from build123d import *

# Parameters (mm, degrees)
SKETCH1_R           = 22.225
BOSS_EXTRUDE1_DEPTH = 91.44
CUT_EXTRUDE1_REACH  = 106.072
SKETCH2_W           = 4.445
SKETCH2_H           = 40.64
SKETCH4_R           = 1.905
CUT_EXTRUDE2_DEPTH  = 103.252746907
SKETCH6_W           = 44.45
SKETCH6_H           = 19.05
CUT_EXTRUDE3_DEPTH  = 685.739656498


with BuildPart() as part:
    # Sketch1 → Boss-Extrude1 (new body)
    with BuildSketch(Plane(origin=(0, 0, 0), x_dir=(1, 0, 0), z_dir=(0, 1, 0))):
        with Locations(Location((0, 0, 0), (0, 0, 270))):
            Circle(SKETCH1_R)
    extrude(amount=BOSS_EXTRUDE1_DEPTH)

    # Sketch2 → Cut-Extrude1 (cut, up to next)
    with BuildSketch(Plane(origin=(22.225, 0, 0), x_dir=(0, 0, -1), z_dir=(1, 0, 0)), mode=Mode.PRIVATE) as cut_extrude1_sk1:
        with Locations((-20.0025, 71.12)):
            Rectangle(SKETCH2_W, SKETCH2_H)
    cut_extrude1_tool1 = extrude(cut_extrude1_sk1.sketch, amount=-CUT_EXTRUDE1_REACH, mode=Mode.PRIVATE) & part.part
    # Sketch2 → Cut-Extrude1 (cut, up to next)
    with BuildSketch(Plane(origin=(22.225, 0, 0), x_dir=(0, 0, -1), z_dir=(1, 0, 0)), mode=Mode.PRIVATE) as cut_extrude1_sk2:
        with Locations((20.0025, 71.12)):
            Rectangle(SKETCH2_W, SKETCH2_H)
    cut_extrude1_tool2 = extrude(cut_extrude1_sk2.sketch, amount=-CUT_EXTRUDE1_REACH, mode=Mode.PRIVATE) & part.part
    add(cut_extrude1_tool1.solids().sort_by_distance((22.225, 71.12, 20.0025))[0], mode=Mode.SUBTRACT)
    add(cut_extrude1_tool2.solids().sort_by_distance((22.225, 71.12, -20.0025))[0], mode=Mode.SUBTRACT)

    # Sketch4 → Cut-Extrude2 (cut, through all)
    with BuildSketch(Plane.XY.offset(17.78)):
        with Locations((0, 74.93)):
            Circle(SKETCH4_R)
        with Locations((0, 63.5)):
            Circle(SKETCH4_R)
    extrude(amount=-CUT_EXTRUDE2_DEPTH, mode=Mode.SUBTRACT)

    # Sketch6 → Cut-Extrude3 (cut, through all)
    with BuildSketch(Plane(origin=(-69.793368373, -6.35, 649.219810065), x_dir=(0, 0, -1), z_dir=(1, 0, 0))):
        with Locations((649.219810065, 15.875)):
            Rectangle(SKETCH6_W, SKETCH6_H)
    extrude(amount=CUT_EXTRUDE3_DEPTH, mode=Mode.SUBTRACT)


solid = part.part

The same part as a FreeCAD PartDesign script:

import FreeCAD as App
import Part
import Sketcher

V = App.Vector
Q = App.Units.Quantity


def add_polygon(sketch, points):
    """Adds a closed chain of lines whose ends are joined by coincident constraints."""
    first, n = sketch.GeometryCount, len(points)
    for a, b in zip(points, points[1:] + points[:1]):
        sketch.addGeometry(Part.LineSegment(App.Vector(*a, 0), App.Vector(*b, 0)), False)
    for i in range(n):
        sketch.addConstraint(Sketcher.Constraint("Coincident", first + i, 2, first + (i + 1) % n, 1))

doc = App.newDocument("Part")
body = doc.addObject("PartDesign::Body", "Body")

sketch1 = doc.addObject("Sketcher::SketchObject", "Sketch")
body.addObject(sketch1)
sketch1.AttachmentSupport = (doc.XZ_Plane, [""])
sketch1.MapMode = "FlatFace"
sketch1.addGeometry(Part.Circle(V(0, 0, 0), V(0, 0, 1), 22.225), False)
sketch1.addConstraint([
    Sketcher.Constraint("Coincident", 0, 3, -1, 1),
    Sketcher.Constraint("Diameter", 0, Q("1.75 in")),
])
pad1 = doc.addObject("PartDesign::Pad", "Pad")
body.addObject(pad1)
pad1.Profile = sketch1
pad1.Length = Q("3.6 in")
pad1.Reversed = True

sketch2 = doc.addObject("Sketcher::SketchObject", "Sketch001")
body.addObject(sketch2)
sketch2.AttachmentSupport = (doc.YZ_Plane, [""])
sketch2.MapMode = "FlatFace"
sketch2.AttachmentOffset = App.Placement(V(0, 0, 0.875 * 25.4), App.Rotation())
add_polygon(sketch2, [(91.44, 22.225), (50.8, 22.225), (50.8, 17.78), (91.44, 17.78)])
sketch2.addConstraint([
    Sketcher.Constraint("Horizontal", 0),
    Sketcher.Constraint("Vertical", 1),
    Sketcher.Constraint("Horizontal", 2),
    Sketcher.Constraint("Vertical", 3),
    Sketcher.Constraint("DistanceX", 0, 2, 0, 1, Q("1.6 in")),
    Sketcher.Constraint("DistanceX", -1, 1, 0, 2, Q("2 in")),
    Sketcher.Constraint("DistanceY", -1, 1, 1, 2, Q("0.7 in")),
    Sketcher.Constraint("DistanceY", 1, 2, 1, 1, Q("0.175 in")),
])
pocket1 = doc.addObject("PartDesign::Pocket", "Pocket")
body.addObject(pocket1)
pocket1.Profile = sketch2
pocket1.Type = "UpToFirst"

sketch3 = doc.addObject("Sketcher::SketchObject", "Sketch002")
body.addObject(sketch3)
sketch3.AttachmentSupport = (doc.YZ_Plane, [""])
sketch3.MapMode = "FlatFace"
sketch3.AttachmentOffset = App.Placement(V(0, 0, 0.875 * 25.4), App.Rotation())
add_polygon(sketch3, [(91.44, -17.78), (50.8, -17.78), (50.8, -22.225), (91.44, -22.225)])
sketch3.addConstraint([
    Sketcher.Constraint("Horizontal", 0),
    Sketcher.Constraint("Vertical", 1),
    Sketcher.Constraint("Horizontal", 2),
    Sketcher.Constraint("Vertical", 3),
    Sketcher.Constraint("DistanceX", 0, 2, 0, 1, Q("1.6 in")),
    Sketcher.Constraint("DistanceX", -1, 1, 0, 2, Q("2 in")),
    Sketcher.Constraint("DistanceY", 0, 2, -1, 1, Q("0.7 in")),
    Sketcher.Constraint("DistanceY", 1, 2, 1, 1, Q("0.175 in")),
])
pocket2 = doc.addObject("PartDesign::Pocket", "Pocket001")
body.addObject(pocket2)
pocket2.Profile = sketch3
pocket2.Type = "UpToFirst"

sketch4 = doc.addObject("Sketcher::SketchObject", "Sketch003")
body.addObject(sketch4)
sketch4.AttachmentSupport = (doc.XY_Plane, [""])
sketch4.MapMode = "FlatFace"
sketch4.AttachmentOffset = App.Placement(V(0, 0, 0.7 * 25.4), App.Rotation())
sketch4.addGeometry([
    Part.Circle(V(0, 74.93, 0), V(0, 0, 1), 1.905),
    Part.Circle(V(0, 63.5, 0), V(0, 0, 1), 1.905),
], False)
sketch4.addConstraint([
    Sketcher.Constraint("Equal", 0, 1),
    Sketcher.Constraint("PointOnObject", 0, 3, -2),
    Sketcher.Constraint("PointOnObject", 1, 3, -2),
    Sketcher.Constraint("Diameter", 0, Q("0.15 in")),
    Sketcher.Constraint("DistanceY", -1, 1, 1, 3, Q("2.5 in")),
    Sketcher.Constraint("DistanceY", -1, 1, 0, 3, Q("2.95 in")),
])
pocket3 = doc.addObject("PartDesign::Pocket", "Pocket002")
body.addObject(pocket3)
pocket3.Profile = sketch4
pocket3.Type = "ThroughAll"

sketch5 = doc.addObject("Sketcher::SketchObject", "Sketch004")
body.addObject(sketch5)
sketch5.AttachmentSupport = (doc.YZ_Plane, [""])
sketch5.MapMode = "FlatFace"
sketch5.AttachmentOffset = App.Placement(V(0, 0, -69.793368), App.Rotation())
add_polygon(sketch5, [(19.05, 22.225), (0, 22.225), (0, -22.225), (19.05, -22.225)])
sketch5.addConstraint([
    Sketcher.Constraint("Horizontal", 0),
    Sketcher.Constraint("Vertical", 1),
    Sketcher.Constraint("Horizontal", 2),
    Sketcher.Constraint("Vertical", 3),
    Sketcher.Constraint("Symmetric", 0, 2, 1, 2, -1, 1),
    Sketcher.Constraint("DistanceX", 0, 2, 0, 1, Q("0.75 in")),
    Sketcher.Constraint("DistanceY", 1, 2, 1, 1, Q("1.75 in")),
])
pocket4 = doc.addObject("PartDesign::Pocket", "Pocket003")
body.addObject(pocket4)
pocket4.Profile = sketch5
pocket4.Type = "ThroughAll"
pocket4.Reversed = True

doc.recompute()
